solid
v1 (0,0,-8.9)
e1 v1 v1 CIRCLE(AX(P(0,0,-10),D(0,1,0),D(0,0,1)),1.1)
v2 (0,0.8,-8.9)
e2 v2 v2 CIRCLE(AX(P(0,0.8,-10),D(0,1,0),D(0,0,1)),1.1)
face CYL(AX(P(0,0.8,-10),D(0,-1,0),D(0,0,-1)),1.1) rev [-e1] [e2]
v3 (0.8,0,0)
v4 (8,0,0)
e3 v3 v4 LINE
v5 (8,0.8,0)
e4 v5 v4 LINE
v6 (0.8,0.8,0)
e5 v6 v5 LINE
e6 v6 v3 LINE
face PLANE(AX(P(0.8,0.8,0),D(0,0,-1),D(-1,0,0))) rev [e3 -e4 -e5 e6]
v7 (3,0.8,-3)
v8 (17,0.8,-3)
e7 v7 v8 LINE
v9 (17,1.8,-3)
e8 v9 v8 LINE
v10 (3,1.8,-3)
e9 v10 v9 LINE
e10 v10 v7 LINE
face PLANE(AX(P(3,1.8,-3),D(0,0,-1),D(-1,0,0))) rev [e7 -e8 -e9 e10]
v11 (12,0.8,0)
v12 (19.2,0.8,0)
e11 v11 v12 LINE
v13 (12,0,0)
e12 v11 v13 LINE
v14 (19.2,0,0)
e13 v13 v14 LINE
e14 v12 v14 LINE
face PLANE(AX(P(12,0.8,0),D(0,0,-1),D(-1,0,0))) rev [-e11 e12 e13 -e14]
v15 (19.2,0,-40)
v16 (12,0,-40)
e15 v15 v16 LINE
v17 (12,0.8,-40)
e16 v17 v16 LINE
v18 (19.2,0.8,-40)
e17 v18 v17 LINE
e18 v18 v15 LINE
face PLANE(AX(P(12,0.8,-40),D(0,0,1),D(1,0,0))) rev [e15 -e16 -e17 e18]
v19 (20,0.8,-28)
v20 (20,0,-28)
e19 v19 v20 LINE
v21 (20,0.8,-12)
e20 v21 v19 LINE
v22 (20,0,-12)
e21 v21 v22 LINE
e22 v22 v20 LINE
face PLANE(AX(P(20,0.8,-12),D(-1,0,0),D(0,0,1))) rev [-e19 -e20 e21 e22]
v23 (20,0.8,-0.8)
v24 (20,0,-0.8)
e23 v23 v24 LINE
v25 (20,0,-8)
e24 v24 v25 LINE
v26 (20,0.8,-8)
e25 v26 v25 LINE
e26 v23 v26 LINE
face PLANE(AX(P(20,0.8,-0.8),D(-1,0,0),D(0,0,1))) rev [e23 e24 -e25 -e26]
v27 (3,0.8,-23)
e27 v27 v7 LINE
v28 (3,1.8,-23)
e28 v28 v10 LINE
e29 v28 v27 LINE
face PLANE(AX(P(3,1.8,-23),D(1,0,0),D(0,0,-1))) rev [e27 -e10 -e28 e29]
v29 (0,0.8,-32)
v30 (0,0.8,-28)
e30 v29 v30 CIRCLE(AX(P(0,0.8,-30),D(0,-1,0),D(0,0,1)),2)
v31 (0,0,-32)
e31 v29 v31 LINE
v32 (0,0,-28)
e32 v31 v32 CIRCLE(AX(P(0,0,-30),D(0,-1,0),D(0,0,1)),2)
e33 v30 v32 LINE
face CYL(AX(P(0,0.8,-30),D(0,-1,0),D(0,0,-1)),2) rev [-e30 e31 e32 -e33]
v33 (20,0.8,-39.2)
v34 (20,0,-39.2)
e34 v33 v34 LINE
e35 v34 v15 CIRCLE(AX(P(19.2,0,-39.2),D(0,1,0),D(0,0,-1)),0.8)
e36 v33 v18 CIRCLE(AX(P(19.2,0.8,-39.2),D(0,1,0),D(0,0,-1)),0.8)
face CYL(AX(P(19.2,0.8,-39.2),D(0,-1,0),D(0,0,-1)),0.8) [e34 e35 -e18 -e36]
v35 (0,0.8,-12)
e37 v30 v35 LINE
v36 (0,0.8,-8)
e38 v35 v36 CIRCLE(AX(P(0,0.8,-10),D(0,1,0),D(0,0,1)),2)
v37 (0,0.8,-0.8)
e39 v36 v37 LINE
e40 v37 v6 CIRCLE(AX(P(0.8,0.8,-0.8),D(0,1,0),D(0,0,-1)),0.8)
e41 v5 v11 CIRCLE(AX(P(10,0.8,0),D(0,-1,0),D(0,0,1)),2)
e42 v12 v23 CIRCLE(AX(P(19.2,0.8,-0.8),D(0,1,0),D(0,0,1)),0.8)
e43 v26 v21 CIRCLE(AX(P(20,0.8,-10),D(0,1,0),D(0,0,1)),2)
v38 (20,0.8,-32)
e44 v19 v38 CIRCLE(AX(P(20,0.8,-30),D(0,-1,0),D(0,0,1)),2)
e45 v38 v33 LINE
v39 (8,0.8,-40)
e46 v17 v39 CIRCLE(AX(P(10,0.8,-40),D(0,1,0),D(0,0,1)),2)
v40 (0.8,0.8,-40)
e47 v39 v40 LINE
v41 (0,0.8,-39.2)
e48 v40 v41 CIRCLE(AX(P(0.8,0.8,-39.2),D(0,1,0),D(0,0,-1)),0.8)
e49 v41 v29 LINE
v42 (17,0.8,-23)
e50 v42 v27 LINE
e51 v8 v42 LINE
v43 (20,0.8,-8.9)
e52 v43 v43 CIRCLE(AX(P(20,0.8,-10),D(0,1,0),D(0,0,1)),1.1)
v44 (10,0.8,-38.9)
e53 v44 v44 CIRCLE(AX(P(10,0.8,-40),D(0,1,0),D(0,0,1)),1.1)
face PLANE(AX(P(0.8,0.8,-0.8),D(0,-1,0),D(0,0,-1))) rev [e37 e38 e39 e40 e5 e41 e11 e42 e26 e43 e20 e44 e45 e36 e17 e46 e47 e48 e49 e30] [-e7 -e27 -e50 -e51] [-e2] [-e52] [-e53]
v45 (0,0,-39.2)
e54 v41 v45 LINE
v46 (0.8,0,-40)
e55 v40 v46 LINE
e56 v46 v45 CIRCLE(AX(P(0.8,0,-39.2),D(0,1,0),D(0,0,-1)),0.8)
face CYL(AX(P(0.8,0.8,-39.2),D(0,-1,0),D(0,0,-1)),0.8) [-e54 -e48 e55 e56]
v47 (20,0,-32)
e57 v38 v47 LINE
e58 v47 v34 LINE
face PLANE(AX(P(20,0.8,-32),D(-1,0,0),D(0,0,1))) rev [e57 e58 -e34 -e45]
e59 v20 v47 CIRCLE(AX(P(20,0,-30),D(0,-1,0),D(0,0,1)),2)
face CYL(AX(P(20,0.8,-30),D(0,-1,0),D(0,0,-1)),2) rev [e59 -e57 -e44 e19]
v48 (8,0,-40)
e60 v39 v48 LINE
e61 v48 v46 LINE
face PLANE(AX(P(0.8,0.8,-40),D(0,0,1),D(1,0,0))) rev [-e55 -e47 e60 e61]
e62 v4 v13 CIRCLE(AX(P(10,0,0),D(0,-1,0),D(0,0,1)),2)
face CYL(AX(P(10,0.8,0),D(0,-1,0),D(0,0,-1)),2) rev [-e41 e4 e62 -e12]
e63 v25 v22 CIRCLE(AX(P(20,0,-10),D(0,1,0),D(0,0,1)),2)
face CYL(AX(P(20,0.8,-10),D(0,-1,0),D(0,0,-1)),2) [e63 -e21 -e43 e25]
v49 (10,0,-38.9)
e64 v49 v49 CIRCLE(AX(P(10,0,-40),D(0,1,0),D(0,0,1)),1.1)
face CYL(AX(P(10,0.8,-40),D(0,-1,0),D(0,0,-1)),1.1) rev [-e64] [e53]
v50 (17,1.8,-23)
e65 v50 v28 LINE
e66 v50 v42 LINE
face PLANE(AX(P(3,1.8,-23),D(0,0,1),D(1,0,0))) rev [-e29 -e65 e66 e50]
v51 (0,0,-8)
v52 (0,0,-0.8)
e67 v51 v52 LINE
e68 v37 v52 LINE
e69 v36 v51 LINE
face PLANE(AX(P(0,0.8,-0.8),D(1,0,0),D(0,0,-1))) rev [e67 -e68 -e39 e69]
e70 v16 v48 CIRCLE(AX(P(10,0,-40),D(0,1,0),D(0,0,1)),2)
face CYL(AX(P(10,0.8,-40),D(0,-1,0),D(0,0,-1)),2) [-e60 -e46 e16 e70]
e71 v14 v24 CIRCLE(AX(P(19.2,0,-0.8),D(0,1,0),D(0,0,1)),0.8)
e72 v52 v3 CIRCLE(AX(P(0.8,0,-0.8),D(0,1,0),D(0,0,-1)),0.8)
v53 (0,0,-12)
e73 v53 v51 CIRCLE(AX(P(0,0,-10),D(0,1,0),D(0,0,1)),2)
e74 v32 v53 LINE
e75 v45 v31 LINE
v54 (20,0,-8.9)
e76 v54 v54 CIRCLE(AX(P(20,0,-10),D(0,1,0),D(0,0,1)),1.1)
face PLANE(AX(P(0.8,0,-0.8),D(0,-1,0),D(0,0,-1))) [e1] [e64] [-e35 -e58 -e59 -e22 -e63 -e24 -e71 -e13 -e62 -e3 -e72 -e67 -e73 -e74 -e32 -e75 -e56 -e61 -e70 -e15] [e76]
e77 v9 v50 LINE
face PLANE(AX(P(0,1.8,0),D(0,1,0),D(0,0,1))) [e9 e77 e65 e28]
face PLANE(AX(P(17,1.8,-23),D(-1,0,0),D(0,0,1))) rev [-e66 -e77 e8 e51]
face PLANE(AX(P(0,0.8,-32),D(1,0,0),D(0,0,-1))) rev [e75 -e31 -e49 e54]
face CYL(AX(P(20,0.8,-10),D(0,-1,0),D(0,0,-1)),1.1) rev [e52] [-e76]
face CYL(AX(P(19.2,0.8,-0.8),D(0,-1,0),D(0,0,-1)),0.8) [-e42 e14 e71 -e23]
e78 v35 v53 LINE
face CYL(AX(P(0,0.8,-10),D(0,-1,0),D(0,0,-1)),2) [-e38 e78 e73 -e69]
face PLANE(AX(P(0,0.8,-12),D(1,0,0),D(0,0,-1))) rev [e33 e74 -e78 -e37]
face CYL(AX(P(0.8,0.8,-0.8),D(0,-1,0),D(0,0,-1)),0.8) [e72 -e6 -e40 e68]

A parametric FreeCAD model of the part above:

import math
import FreeCAD as App
import Part
import Sketcher
from FreeCAD import Vector
Q = App.Units.Quantity

doc = App.newDocument("Part")
body = doc.addObject("PartDesign::Body", "Body")

# Sketch on XZ plane
sketch1 = doc.addObject("Sketcher::SketchObject", "Sketch")
body.addObject(sketch1)
sketch1.AttachmentSupport = (doc.XZ_Plane, [""])
sketch1.MapMode = "FlatFace"
sketch1.addGeometry([
    Part.LineSegment(Vector(0.8, 0, 0), Vector(8, 0, 0)),  # 0
    Part.ArcOfCircle(Part.Circle(Vector(10, 0, 0), Vector(0, 0, 1), 2), math.radians(180), math.radians(360)),  # 1
    Part.LineSegment(Vector(12, 0, 0), Vector(19.2, 0, 0)),  # 2
    Part.ArcOfCircle(Part.Circle(Vector(19.2, -0.8, 0), Vector(0, 0, 1), 0.8), math.radians(0), math.radians(90)),  # 3
    Part.LineSegment(Vector(20, -0.8, 0), Vector(20, -8, 0)),  # 4
    Part.ArcOfCircle(Part.Circle(Vector(20, -10, 0), Vector(0, 0, 1), 2), math.radians(-90), math.radians(90)),  # 5
    Part.LineSegment(Vector(20, -12, 0), Vector(20, -28, 0)),  # 6
    Part.ArcOfCircle(Part.Circle(Vector(20, -30, 0), Vector(0, 0, 1), 2), math.radians(90), math.radians(270)),  # 7
    Part.LineSegment(Vector(20, -32, 0), Vector(20, -39.2, 0)),  # 8
    Part.ArcOfCircle(Part.Circle(Vector(19.2, -39.2, 0), Vector(0, 0, 1), 0.8), math.radians(-90), math.radians(0)),  # 9
    Part.LineSegment(Vector(19.2, -40, 0), Vector(12, -40, 0)),  # 10
    Part.ArcOfCircle(Part.Circle(Vector(10, -40, 0), Vector(0, 0, 1), 2), math.radians(180), math.radians(360)),  # 11
    Part.LineSegment(Vector(8, -40, 0), Vector(0.8, -40, 0)),  # 12
    Part.ArcOfCircle(Part.Circle(Vector(0.8, -39.2, 0), Vector(0, 0, 1), 0.8), math.radians(180), math.radians(270)),  # 13
    Part.LineSegment(Vector(0, -39.2, 0), Vector(0, -32, 0)),  # 14
    Part.ArcOfCircle(Part.Circle(Vector(0, -30, 0), Vector(0, 0, 1), 2), math.radians(-90), math.radians(90)),  # 15
    Part.LineSegment(Vector(0, -28, 0), Vector(0, -12, 0)),  # 16
    Part.ArcOfCircle(Part.Circle(Vector(0, -10, 0), Vector(0, 0, 1), 2), math.radians(90), math.radians(270)),  # 17
    Part.LineSegment(Vector(0, -8, 0), Vector(0, -0.8, 0)),  # 18
    Part.ArcOfCircle(Part.Circle(Vector(0.8, -0.8, 0), Vector(0, 0, 1), 0.8), math.radians(90), math.radians(180)),  # 19
    Part.Circle(Vector(0, -10, 0), Vector(0, 0, 1), 1.1),  # 20
    Part.Circle(Vector(20, -10, 0), Vector(0, 0, 1), 1.1),  # 21
    Part.Circle(Vector(10, -40, 0), Vector(0, 0, 1), 1.1),  # 22
], False)
sketch1.addConstraint([
    Sketcher.Constraint("Coincident", 0, 2, 1, 1),
    Sketcher.Constraint("Coincident", 1, 2, 2, 1),
    Sketcher.Constraint("Tangent", 2, 2, 3, 2),
    Sketcher.Constraint("Tangent", 3, 1, 4, 1),
    Sketcher.Constraint("Coincident", 4, 2, 5, 2),
    Sketcher.Constraint("Coincident", 5, 1, 6, 1),
    Sketcher.Constraint("Coincident", 6, 2, 7, 1),
    Sketcher.Constraint("Coincident", 7, 2, 8, 1),
    Sketcher.Constraint("Tangent", 8, 2, 9, 2),
    Sketcher.Constraint("Tangent", 9, 1, 10, 1),
    Sketcher.Constraint("Coincident", 10, 2, 11, 2),
    Sketcher.Constraint("Coincident", 11, 1, 12, 1),
    Sketcher.Constraint("Tangent", 12, 2, 13, 2),
    Sketcher.Constraint("Tangent", 13, 1, 14, 1),
    Sketcher.Constraint("Coincident", 14, 2, 15, 1),
    Sketcher.Constraint("Coincident", 15, 2, 16, 1),
    Sketcher.Constraint("Coincident", 16, 2, 17, 2),
    Sketcher.Constraint("Coincident", 17, 1, 18, 1),
    Sketcher.Constraint("Tangent", 18, 2, 19, 2),
    Sketcher.Constraint("Tangent", 19, 1, 0, 1),
    Sketcher.Constraint("Horizontal", 0),
    Sketcher.Constraint("Horizontal", 2),
    Sketcher.Constraint("Vertical", 4),
    Sketcher.Constraint("Vertical", 6),
    Sketcher.Constraint("Vertical", 8),
    Sketcher.Constraint("Horizontal", 10),
    Sketcher.Constraint("Horizontal", 12),
    Sketcher.Constraint("Vertical", 14),
    Sketcher.Constraint("Vertical", 16),
    Sketcher.Constraint("Vertical", 18),
    Sketcher.Constraint("Coincident", 20, 3, 17, 3),
    Sketcher.Constraint("Coincident", 21, 3, 5, 3),
    Sketcher.Constraint("Coincident", 22, 3, 11, 3),
    Sketcher.Constraint("Equal", 1, 5),
    Sketcher.Constraint("Equal", 5, 7),
    Sketcher.Constraint("Equal", 3, 9),
    Sketcher.Constraint("Equal", 7, 11),
    Sketcher.Constraint("Equal", 9, 13),
    Sketcher.Constraint("Equal", 11, 15),
    Sketcher.Constraint("Equal", 15, 17),
    Sketcher.Constraint("Equal", 13, 19),
    Sketcher.Constraint("Equal", 20, 21),
    Sketcher.Constraint("Equal", 21, 22),
    Sketcher.Constraint("PointOnObject", 1, 3, -1),
    Sketcher.Constraint("PointOnObject", 15, 3, -2),
    Sketcher.Constraint("PointOnObject", 17, 3, -2),
    Sketcher.Constraint("PointOnObject", 0, 2, -1),
    Sketcher.Constraint("PointOnObject", 1, 2, -1),
    Sketcher.Constraint("PointOnObject", 13, 1, -2),
    Sketcher.Constraint("PointOnObject", 15, 2, -2),
    Sketcher.Constraint("PointOnObject", 17, 1, -2),
    Sketcher.Constraint("Horizontal", 9, 3, 13, 3),
    Sketcher.Constraint("Horizontal", 7, 3, 15, 3),
    Sketcher.Constraint("Horizontal", 5, 3, 17, 3),
    Sketcher.Constraint("Horizontal", 22, 3, 9, 1),
    Sketcher.Constraint("Vertical", 5, 3, 7, 3),
    Sketcher.Constraint("Vertical", 3, 3, 9, 3),
    Sketcher.Constraint("Vertical", 1, 3, 11, 3),
    Sketcher.Constraint("Vertical", 21, 3, 3, 1),
    Sketcher.Constraint("Vertical", 4, 2, 5, 1),
    Sketcher.Constraint("Equal", 0, 2),
    Sketcher.Constraint("Equal", 12, 4),
    Sketcher.Constraint("Equal", 4, 8),
    Sketcher.Constraint("Radius", 1, Q("2 mm")),
    Sketcher.Constraint("Diameter", 20, Q("2.2 mm")),
    Sketcher.Constraint("Radius", 3, Q("0.8 mm")),
    Sketcher.Constraint("DistanceY", 6, 2, 6, 1, Q("16 mm")),
    Sketcher.Constraint("DistanceX", 0, 1, 0, 2, Q("7.2 mm")),
])
pad1 = doc.addObject("PartDesign::Pad", "Pad")
body.addObject(pad1)
pad1.Profile = sketch1
pad1.Length = 0.8
pad1.Reversed = True

# Sketch on XZ plane
sketch2 = doc.addObject("Sketcher::SketchObject", "Sketch001")
body.addObject(sketch2)
sketch2.AttachmentSupport = (doc.XZ_Plane, [""])
sketch2.MapMode = "FlatFace"
sketch2.AttachmentOffset = App.Placement(Vector(0, 0, -0.8), App.Rotation())
sketch2.addGeometry([
    Part.LineSegment(Vector(3, -23, 0), Vector(3, -3, 0)),
    Part.LineSegment(Vector(3, -3, 0), Vector(17, -3, 0)),
    Part.LineSegment(Vector(17, -3, 0), Vector(17, -23, 0)),
    Part.LineSegment(Vector(17, -23, 0), Vector(3, -23, 0)),
], False)
sketch2.addConstraint([
    Sketcher.Constraint("Coincident", 0, 2, 1, 1),
    Sketcher.Constraint("Coincident", 1, 2, 2, 1),
    Sketcher.Constraint("Coincident", 2, 2, 3, 1),
    Sketcher.Constraint("Coincident", 3, 2, 0, 1),
    Sketcher.Constraint("Vertical", 0),
    Sketcher.Constraint("Horizontal", 1),
    Sketcher.Constraint("Vertical", 2),
    Sketcher.Constraint("Horizontal", 3),
    Sketcher.Constraint("DistanceX", 1, 1, 1, 2, Q("14 mm")),
    Sketcher.Constraint("DistanceY", 0, 1, 0, 2, Q("20 mm")),
    Sketcher.Constraint("DistanceX", -1, 1, 0, 2, Q("3 mm")),
    Sketcher.Constraint("DistanceY", 0, 2, -1, 1, Q("3 mm")),
])
pad2 = doc.addObject("PartDesign::Pad", "Pad001")
body.addObject(pad2)
pad2.Profile = sketch2
pad2.Length = 1
pad2.Reversed = True

doc.recompute()
